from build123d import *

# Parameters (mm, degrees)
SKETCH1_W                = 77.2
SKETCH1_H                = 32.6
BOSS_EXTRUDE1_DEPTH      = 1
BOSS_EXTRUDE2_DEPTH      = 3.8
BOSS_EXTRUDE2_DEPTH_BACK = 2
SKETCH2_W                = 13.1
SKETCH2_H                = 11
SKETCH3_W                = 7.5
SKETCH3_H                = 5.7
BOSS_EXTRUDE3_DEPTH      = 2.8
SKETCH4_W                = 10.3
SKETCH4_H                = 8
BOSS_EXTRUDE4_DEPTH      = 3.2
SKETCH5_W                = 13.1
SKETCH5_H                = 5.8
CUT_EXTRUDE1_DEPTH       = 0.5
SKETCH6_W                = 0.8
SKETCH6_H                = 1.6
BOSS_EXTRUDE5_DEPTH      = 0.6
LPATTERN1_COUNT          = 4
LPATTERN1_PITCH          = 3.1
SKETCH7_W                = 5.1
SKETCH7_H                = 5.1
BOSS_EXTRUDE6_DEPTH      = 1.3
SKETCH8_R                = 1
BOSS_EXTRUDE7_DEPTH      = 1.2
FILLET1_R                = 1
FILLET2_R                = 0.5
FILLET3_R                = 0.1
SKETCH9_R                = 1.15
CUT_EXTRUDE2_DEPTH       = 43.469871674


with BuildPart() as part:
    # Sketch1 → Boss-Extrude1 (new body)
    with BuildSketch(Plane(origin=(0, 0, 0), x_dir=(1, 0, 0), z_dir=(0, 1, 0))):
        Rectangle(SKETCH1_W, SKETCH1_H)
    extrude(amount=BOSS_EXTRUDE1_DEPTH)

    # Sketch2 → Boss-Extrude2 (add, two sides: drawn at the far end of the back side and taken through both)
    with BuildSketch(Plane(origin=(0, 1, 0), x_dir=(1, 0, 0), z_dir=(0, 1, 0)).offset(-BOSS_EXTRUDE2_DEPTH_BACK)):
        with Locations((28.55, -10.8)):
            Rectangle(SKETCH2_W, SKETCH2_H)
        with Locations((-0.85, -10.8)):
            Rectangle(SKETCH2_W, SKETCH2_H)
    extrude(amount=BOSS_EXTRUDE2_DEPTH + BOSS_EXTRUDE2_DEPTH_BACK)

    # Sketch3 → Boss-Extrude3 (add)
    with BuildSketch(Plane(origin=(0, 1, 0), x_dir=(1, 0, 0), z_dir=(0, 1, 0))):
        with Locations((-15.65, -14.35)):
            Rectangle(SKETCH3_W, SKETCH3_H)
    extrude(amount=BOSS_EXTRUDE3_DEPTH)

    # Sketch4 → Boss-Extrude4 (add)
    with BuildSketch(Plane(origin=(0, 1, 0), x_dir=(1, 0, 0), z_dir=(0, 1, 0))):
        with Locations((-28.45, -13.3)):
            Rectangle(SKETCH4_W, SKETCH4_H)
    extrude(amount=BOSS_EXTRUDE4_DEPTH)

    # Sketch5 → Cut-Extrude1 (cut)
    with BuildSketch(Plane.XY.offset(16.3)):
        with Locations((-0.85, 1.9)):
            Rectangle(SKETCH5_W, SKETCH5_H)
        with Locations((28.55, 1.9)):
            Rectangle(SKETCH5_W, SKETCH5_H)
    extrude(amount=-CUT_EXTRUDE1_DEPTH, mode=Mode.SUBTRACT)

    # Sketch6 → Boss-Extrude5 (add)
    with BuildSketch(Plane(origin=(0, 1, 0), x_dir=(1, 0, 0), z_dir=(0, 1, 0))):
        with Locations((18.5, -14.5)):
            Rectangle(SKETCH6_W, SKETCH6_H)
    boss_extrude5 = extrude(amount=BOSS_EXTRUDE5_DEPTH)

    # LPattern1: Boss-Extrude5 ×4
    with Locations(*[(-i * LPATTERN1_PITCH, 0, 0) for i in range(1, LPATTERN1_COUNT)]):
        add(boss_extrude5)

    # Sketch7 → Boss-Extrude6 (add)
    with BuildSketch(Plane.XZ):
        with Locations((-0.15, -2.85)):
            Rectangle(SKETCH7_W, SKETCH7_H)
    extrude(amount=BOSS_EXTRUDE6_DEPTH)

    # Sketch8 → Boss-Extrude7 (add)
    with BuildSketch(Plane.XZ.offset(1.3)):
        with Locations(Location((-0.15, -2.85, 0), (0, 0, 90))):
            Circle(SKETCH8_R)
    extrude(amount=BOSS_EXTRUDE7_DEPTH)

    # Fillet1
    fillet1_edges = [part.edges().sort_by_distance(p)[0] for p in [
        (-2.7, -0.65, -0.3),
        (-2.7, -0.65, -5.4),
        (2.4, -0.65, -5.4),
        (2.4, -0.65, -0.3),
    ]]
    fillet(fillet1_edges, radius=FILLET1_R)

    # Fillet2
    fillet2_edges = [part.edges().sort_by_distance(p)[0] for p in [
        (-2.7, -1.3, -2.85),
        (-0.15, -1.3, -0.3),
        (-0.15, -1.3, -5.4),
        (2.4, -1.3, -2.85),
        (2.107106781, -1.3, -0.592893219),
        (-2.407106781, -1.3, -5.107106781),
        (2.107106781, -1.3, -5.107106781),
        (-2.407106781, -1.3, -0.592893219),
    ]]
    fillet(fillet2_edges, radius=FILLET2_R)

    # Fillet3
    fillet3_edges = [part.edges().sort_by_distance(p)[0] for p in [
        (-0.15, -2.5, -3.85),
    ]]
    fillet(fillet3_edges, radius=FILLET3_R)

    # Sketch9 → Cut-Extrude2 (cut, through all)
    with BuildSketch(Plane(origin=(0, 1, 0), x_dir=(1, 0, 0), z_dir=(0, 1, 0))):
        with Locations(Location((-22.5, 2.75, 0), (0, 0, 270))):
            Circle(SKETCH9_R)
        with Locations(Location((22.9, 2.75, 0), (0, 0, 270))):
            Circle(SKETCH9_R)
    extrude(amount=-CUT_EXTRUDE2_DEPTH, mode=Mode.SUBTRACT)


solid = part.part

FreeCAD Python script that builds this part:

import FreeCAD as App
import Part
import Sketcher

V = App.Vector


def edges_at(feature, points):
    """Names of the edges that pass closest to the given points."""
    edges = feature.Shape.Edges
    near = lambda p: min(range(len(edges)), key=lambda i: edges[i].distToShape(Part.Vertex(*p))[0])
    return sorted({f"Edge{near(p) + 1}" for p in points})


def add_polygon(sketch, points):
    """Adds a closed chain of lines whose ends are joined by coincident constraints."""
    first, n = sketch.GeometryCount, len(points)
    for a, b in zip(points, points[1:] + points[:1]):
        sketch.addGeometry(Part.LineSegment(App.Vector(*a, 0), App.Vector(*b, 0)), False)
    for i in range(n):
        sketch.addConstraint(Sketcher.Constraint("Coincident", first + i, 2, first + (i + 1) % n, 1))

doc = App.newDocument("Part")
params = doc.addObject("Spreadsheet::Sheet", "Params")
for row, (alias, value) in enumerate([
    ("sketch1_width", "77.2 mm"),
    ("sketch1_height", "32.6 mm"),
    ("pad1_length", "1 mm"),
    ("sketch2_height", "11 mm"),
    ("sketch2_width", "13.1 mm"),
    ("pad2_length", "3.8 mm"),
    ("pad2_length2", "2 mm"),
    ("sketch3_width", "7.5 mm"),
    ("sketch3_height", "5.7 mm"),
    ("pad3_length", "2.8 mm"),
    ("sketch4_height", "8 mm"),
    ("sketch4_width", "10.3 mm"),
    ("pad4_length", "3.2 mm"),
    ("sketch5_width", "13.1 mm"),
    ("sketch5_height", "5.8 mm"),
    ("pocket1_length", "0.5 mm"),
    ("sketch6_width", "0.8 mm"),
    ("sketch6_height", "1.6 mm"),
    ("pad5_length", "0.6 mm"),
    ("linearpattern_pitch", "3.1 mm"),
    ("sketch7_width", "5.1 mm"),
    ("pad6_length", "1.3 mm"),
    ("sketch8_diameter", "2 mm"),
    ("pad7_length", "1.2 mm"),
    ("fillet_radius", "1 mm"),
    ("fillet2_radius", "0.5 mm"),
    ("fillet3_radius", "0.1 mm"),
    ("sketch9_diameter", "2.3 mm"),
], start=1):
    params.set(f"A{row}", alias)
    params.set(f"B{row}", "=" + value)
    params.setAlias(f"B{row}", alias)

body = doc.addObject("PartDesign::Body", "Body")

sketch1 = body.newObject("Sketcher::SketchObject", "Sketch")
sketch1.AttachmentSupport = (doc.getObject("XZ_Plane"), [""])
sketch1.MapMode = "FlatFace"
add_polygon(sketch1, [(-39, -16), (-39, 16), (39, 16), (39, -16)])
sketch1.addConstraint([
    Sketcher.Constraint("Vertical", 0),
    Sketcher.Constraint("Horizontal", 1),
    Sketcher.Constraint("Vertical", 2),
    Sketcher.Constraint("Horizontal", 3),
    Sketcher.Constraint("Symmetric", 0, 2, 2, 2, -1, 1),
    Sketcher.Constraint("DistanceX", 1, 1, 1, 2, 77.2),
    Sketcher.Constraint("DistanceY", 0, 1, 0, 2, 32.6),
])
sketch1.setExpression("Constraints[9]", "Params.sketch1_width")
sketch1.setExpression("Constraints[10]", "Params.sketch1_height")
pad1 = body.newObject("PartDesign::Pad", "Pad")
pad1.Profile = sketch1
pad1.setExpression("Length", "Params.pad1_length")
pad1.Reversed = True

sketch2 = body.newObject("Sketcher::SketchObject", "Sketch001")
sketch2.AttachmentSupport = (doc.getObject("XZ_Plane"), [""])
sketch2.MapMode = "FlatFace"
sketch2.AttachmentOffset = App.Placement(V(0, 0, -1), App.Rotation())
add_polygon(sketch2, [(22, 5), (22, 16), (35, 16), (35, 5)])
add_polygon(sketch2, [(-7, 5), (-7, 16), (6, 16), (6, 5)])
sketch2.addConstraint([
    Sketcher.Constraint("Vertical", 0),
    Sketcher.Constraint("Horizontal", 1),
    Sketcher.Constraint("Vertical", 2),
    Sketcher.Constraint("Horizontal", 3),
    Sketcher.Constraint("Vertical", 4),
    Sketcher.Constraint("Horizontal", 5),
    Sketcher.Constraint("Vertical", 6),
    Sketcher.Constraint("Horizontal", 7),
    Sketcher.Constraint("Horizontal", 1, 2, 4, 2),
    Sketcher.Constraint("Horizontal", 3, 2, 6, 2),
    Sketcher.Constraint("Equal", 3, 5),
    Sketcher.Constraint("DistanceY", 0, 1, 0, 2, 11.0),
    Sketcher.Constraint("DistanceX", 1, 1, 1, 2, 13.1),
    Sketcher.Constraint("DistanceX", -1, 1, 0, 2, 22.0),
    Sketcher.Constraint("DistanceY", -1, 1, 0, 2, 16.3),
    Sketcher.Constraint("DistanceX", 4, 2, -1, 1, 7.4),
])
sketch2.setExpression("Constraints[19]", "Params.sketch2_height")
sketch2.setExpression("Constraints[20]", "Params.sketch2_width")
pad2 = body.newObject("PartDesign::Pad", "Pad001")
pad2.Profile = sketch2
pad2.Type = "TwoLengths"
pad2.setExpression("Length", "Params.pad2_length")
pad2.setExpression("Length2", "Params.pad2_length2")
pad2.Reversed = True

sketch3 = body.newObject("Sketcher::SketchObject", "Sketch002")
sketch3.AttachmentSupport = (doc.getObject("XZ_Plane"), [""])
sketch3.MapMode = "FlatFace"
sketch3.AttachmentOffset = App.Placement(V(0, 0, -1), App.Rotation())
add_polygon(sketch3, [(-19, 12), (-19, 17), (-12, 17), (-12, 12)])
sketch3.addConstraint([
    Sketcher.Constraint("Vertical", 0),
    Sketcher.Constraint("Horizontal", 1),
    Sketcher.Constraint("Vertical", 2),
    Sketcher.Constraint("Horizontal", 3),
    Sketcher.Constraint("DistanceX", 1, 1, 1, 2, 7.5),
    Sketcher.Constraint("DistanceY", 0, 1, 0, 2, 5.7),
    Sketcher.Constraint("DistanceX", 0, 2, -1, 1, 19.4),
    Sketcher.Constraint("DistanceY", -1, 1, 0, 2, 17.2),
])
sketch3.setExpression("Constraints[8]", "Params.sketch3_width")
sketch3.setExpression("Constraints[9]", "Params.sketch3_height")
pad3 = body.newObject("PartDesign::Pad", "Pad002")
pad3.Profile = sketch3
pad3.setExpression("Length", "Params.pad3_length")
pad3.Reversed = True

sketch4 = body.newObject("Sketcher::SketchObject", "Sketch003")
sketch4.AttachmentSupport = (doc.getObject("XZ_Plane"), [""])
sketch4.MapMode = "FlatFace"
sketch4.AttachmentOffset = App.Placement(V(0, 0, -1), App.Rotation())
add_polygon(sketch4, [(-34, 9), (-34, 17), (-23, 17), (-23, 9)])
sketch4.addConstraint([
    Sketcher.Constraint("Vertical", 0),
    Sketcher.Constraint("Horizontal", 1),
    Sketcher.Constraint("Vertical", 2),
    Sketcher.Constraint("Horizontal", 3),
    Sketcher.Constraint("DistanceY", 0, 1, 0, 2, 8.0),
    Sketcher.Constraint("DistanceX", 1, 1, 1, 2, 10.3),
    Sketcher.Constraint("DistanceX", 0, 2, -1, 1, 33.6),
    Sketcher.Constraint("DistanceY", -1, 1, 0, 2, 17.3),
])
sketch4.setExpression("Constraints[8]", "Params.sketch4_height")
sketch4.setExpression("Constraints[9]", "Params.sketch4_width")
pad4 = body.newObject("PartDesign::Pad", "Pad003")
pad4.Profile = sketch4
pad4.setExpression("Length", "Params.pad4_length")
pad4.Reversed = True

sketch5 = body.newObject("Sketcher::SketchObject", "Sketch004")
sketch5.AttachmentSupport = (doc.getObject("XY_Plane"), [""])
sketch5.MapMode = "FlatFace"
sketch5.AttachmentOffset = App.Placement(V(0, 0, 16.3), App.Rotation())
add_polygon(sketch5, [(-7, 5), (-7, -1), (6, -1), (6, 5)])
add_polygon(sketch5, [(22, 5), (22, -1), (35, -1), (35, 5)])
sketch5.addConstraint([
    Sketcher.Constraint("Vertical", 0),
    Sketcher.Constraint("Horizontal", 1),
    Sketcher.Constraint("Vertical", 2),
    Sketcher.Constraint("Horizontal", 3),
    Sketcher.Constraint("Vertical", 4),
    Sketcher.Constraint("Horizontal", 5),
    Sketcher.Constraint("Vertical", 6),
    Sketcher.Constraint("Horizontal", 7),
    Sketcher.Constraint("Horizontal", 1, 2, 4, 2),
    Sketcher.Constraint("Horizontal", 3, 2, 6, 2),
    Sketcher.Constraint("Equal", 3, 5),
    Sketcher.Constraint("DistanceX", 1, 1, 1, 2, 13.1),
    Sketcher.Constraint("DistanceY", 0, 2, 0, 1, 5.8),
    Sketcher.Constraint("DistanceY", 0, 2, -1, 1, 1.0),
    Sketcher.Constraint("DistanceX", -1, 1, 4, 2, 22.0),
    Sketcher.Constraint("DistanceX", 0, 2, -1, 1, 7.4),
])
sketch5.setExpression("Constraints[19]", "Params.sketch5_width")
sketch5.setExpression("Constraints[20]", "Params.sketch5_height")
pocket1 = body.newObject("PartDesign::Pocket", "Pocket")
pocket1.Profile = sketch5
pocket1.setExpression("Length", "Params.pocket1_length")

sketch6 = body.newObject("Sketcher::SketchObject", "Sketch005")
sketch6.AttachmentSupport = (doc.getObject("XZ_Plane"), [""])
sketch6.MapMode = "FlatFace"
sketch6.AttachmentOffset = App.Placement(V(0, 0, -1), App.Rotation())
add_polygon(sketch6, [(18.1, 13.7), (18.1, 15.3), (18.9, 15.3), (18.9, 13.7)])
sketch6.addConstraint([
    Sketcher.Constraint("Vertical", 0),
    Sketcher.Constraint("Horizontal", 1),
    Sketcher.Constraint("Vertical", 2),
    Sketcher.Constraint("Horizontal", 3),
    Sketcher.Constraint("DistanceX", 1, 1, 1, 2, 0.8),
    Sketcher.Constraint("DistanceY", 0, 1, 0, 2, 1.6),
    Sketcher.Constraint("DistanceX", -1, 1, 0, 2, 18.1),
    Sketcher.Constraint("DistanceY", -1, 1, 0, 2, 15.3),
])
sketch6.setExpression("Constraints[8]", "Params.sketch6_width")
sketch6.setExpression("Constraints[9]", "Params.sketch6_height")
pad5 = body.newObject("PartDesign::Pad", "Pad004")
pad5.Profile = sketch6
pad5.setExpression("Length", "Params.pad5_length")
pad5.Reversed = True
doc.recompute()

linearpattern = body.newObject("PartDesign::LinearPattern", "LinearPattern")
linearpattern.Originals = [pad5]
linearpattern.Direction = (doc.getObject("X_Axis"), [""])
linearpattern.Mode = "offset"
linearpattern.setExpression("Offset", "Params.linearpattern_pitch")
linearpattern.Occurrences = 4
linearpattern.Reversed = True
body.Tip = linearpattern

sketch7 = body.newObject("Sketcher::SketchObject", "Sketch006")
sketch7.AttachmentSupport = (doc.getObject("XZ_Plane"), [""])
sketch7.MapMode = "FlatFace"
add_polygon(sketch7, [(-3, 0), (-3, -5), (2, -5), (2, 0)])
sketch7.addConstraint([
    Sketcher.Constraint("Vertical", 0),
    Sketcher.Constraint("Horizontal", 1),
    Sketcher.Constraint("Vertical", 2),
    Sketcher.Constraint("Horizontal", 3),
    Sketcher.Constraint("Equal", 3, 0),
    Sketcher.Constraint("DistanceX", 1, 1, 1, 2, 5.1),
    Sketcher.Constraint("DistanceX", 0, 2, -1, 1, 2.7),
    Sketcher.Constraint("DistanceY", 0, 2, -1, 1, 5.4),
])
sketch7.setExpression("Constraints[9]", "Params.sketch7_width")
pad6 = body.newObject("PartDesign::Pad", "Pad005")
pad6.Profile = sketch7
pad6.setExpression("Length", "Params.pad6_length")

sketch8 = body.newObject("Sketcher::SketchObject", "Sketch007")
sketch8.AttachmentSupport = (doc.getObject("XZ_Plane"), [""])
sketch8.MapMode = "FlatFace"
sketch8.AttachmentOffset = App.Placement(V(0, 0, 1.3), App.Rotation())
sketch8.addGeometry(Part.Circle(V(-0.1, -2.9, 0), V(0, 0, 1), 1), False)
sketch8.addConstraint([
    Sketcher.Constraint("Diameter", 0, 2.0),
    Sketcher.Constraint("DistanceX", 0, 3, -1, 1, 0.15),
    Sketcher.Constraint("DistanceY", 0, 3, -1, 1, 2.85),
])
sketch8.setExpression("Constraints[0]", "Params.sketch8_diameter")
pad7 = body.newObject("PartDesign::Pad", "Pad006")
pad7.Profile = sketch8
pad7.setExpression("Length", "Params.pad7_length")
doc.recompute()

fillet = body.newObject("PartDesign::Fillet", "Fillet")
fillet.Base = (pad7, edges_at(pad7, [
    (-2.7, -0.65, -0.3),
    (-2.7, -0.65, -5.4),
    (2.4, -0.65, -5.4),
    (2.4, -0.65, -0.3),
]))
fillet.setExpression("Radius", "Params.fillet_radius")
doc.recompute()

fillet2 = body.newObject("PartDesign::Fillet", "Fillet001")
fillet2.Base = (fillet, edges_at(fillet, [
    (-2.7, -1.3, -2.85),
    (-0.15, -1.3, -0.3),
    (-0.15, -1.3, -5.4),
    (2.4, -1.3, -2.85),
    (2.107, -1.3, -0.593),
    (-2.407, -1.3, -5.107),
    (2.107, -1.3, -5.107),
    (-2.407, -1.3, -0.593),
]))
fillet2.setExpression("Radius", "Params.fillet2_radius")
doc.recompute()

fillet3 = body.newObject("PartDesign::Fillet", "Fillet002")
fillet3.Base = (fillet2, edges_at(fillet2, [(-0.15, -2.5, -3.85)]))
fillet3.setExpression("Radius", "Params.fillet3_radius")

sketch9 = body.newObject("Sketcher::SketchObject", "Sketch008")
sketch9.AttachmentSupport = (doc.getObject("XZ_Plane"), [""])
sketch9.MapMode = "FlatFace"
sketch9.AttachmentOffset = App.Placement(V(0, 0, -1), App.Rotation())
sketch9.addGeometry([
    Part.Circle(V(-22.5, -2.8, 0), V(0, 0, 1), 1.1),
    Part.Circle(V(22.9, -2.8, 0), V(0, 0, 1), 1.1),
], False)
sketch9.addConstraint([
    Sketcher.Constraint("Equal", 0, 1),
    Sketcher.Constraint("Horizontal", 0, 3, 1, 3),
    Sketcher.Constraint("Diameter", 0, 2.3),
    Sketcher.Constraint("DistanceX", 0, 3, -1, 1, 22.5),
    Sketcher.Constraint("DistanceX", -1, 1, 1, 3, 22.9),
    Sketcher.Constraint("DistanceY", 0, 3, -1, 1, 2.75),
])
sketch9.setExpression("Constraints[2]", "Params.sketch9_diameter")
pocket2 = body.newObject("PartDesign::Pocket", "Pocket001")
pocket2.Profile = sketch9
pocket2.Type = "ThroughAll"
pocket2.Reversed = True

doc.recompute()
